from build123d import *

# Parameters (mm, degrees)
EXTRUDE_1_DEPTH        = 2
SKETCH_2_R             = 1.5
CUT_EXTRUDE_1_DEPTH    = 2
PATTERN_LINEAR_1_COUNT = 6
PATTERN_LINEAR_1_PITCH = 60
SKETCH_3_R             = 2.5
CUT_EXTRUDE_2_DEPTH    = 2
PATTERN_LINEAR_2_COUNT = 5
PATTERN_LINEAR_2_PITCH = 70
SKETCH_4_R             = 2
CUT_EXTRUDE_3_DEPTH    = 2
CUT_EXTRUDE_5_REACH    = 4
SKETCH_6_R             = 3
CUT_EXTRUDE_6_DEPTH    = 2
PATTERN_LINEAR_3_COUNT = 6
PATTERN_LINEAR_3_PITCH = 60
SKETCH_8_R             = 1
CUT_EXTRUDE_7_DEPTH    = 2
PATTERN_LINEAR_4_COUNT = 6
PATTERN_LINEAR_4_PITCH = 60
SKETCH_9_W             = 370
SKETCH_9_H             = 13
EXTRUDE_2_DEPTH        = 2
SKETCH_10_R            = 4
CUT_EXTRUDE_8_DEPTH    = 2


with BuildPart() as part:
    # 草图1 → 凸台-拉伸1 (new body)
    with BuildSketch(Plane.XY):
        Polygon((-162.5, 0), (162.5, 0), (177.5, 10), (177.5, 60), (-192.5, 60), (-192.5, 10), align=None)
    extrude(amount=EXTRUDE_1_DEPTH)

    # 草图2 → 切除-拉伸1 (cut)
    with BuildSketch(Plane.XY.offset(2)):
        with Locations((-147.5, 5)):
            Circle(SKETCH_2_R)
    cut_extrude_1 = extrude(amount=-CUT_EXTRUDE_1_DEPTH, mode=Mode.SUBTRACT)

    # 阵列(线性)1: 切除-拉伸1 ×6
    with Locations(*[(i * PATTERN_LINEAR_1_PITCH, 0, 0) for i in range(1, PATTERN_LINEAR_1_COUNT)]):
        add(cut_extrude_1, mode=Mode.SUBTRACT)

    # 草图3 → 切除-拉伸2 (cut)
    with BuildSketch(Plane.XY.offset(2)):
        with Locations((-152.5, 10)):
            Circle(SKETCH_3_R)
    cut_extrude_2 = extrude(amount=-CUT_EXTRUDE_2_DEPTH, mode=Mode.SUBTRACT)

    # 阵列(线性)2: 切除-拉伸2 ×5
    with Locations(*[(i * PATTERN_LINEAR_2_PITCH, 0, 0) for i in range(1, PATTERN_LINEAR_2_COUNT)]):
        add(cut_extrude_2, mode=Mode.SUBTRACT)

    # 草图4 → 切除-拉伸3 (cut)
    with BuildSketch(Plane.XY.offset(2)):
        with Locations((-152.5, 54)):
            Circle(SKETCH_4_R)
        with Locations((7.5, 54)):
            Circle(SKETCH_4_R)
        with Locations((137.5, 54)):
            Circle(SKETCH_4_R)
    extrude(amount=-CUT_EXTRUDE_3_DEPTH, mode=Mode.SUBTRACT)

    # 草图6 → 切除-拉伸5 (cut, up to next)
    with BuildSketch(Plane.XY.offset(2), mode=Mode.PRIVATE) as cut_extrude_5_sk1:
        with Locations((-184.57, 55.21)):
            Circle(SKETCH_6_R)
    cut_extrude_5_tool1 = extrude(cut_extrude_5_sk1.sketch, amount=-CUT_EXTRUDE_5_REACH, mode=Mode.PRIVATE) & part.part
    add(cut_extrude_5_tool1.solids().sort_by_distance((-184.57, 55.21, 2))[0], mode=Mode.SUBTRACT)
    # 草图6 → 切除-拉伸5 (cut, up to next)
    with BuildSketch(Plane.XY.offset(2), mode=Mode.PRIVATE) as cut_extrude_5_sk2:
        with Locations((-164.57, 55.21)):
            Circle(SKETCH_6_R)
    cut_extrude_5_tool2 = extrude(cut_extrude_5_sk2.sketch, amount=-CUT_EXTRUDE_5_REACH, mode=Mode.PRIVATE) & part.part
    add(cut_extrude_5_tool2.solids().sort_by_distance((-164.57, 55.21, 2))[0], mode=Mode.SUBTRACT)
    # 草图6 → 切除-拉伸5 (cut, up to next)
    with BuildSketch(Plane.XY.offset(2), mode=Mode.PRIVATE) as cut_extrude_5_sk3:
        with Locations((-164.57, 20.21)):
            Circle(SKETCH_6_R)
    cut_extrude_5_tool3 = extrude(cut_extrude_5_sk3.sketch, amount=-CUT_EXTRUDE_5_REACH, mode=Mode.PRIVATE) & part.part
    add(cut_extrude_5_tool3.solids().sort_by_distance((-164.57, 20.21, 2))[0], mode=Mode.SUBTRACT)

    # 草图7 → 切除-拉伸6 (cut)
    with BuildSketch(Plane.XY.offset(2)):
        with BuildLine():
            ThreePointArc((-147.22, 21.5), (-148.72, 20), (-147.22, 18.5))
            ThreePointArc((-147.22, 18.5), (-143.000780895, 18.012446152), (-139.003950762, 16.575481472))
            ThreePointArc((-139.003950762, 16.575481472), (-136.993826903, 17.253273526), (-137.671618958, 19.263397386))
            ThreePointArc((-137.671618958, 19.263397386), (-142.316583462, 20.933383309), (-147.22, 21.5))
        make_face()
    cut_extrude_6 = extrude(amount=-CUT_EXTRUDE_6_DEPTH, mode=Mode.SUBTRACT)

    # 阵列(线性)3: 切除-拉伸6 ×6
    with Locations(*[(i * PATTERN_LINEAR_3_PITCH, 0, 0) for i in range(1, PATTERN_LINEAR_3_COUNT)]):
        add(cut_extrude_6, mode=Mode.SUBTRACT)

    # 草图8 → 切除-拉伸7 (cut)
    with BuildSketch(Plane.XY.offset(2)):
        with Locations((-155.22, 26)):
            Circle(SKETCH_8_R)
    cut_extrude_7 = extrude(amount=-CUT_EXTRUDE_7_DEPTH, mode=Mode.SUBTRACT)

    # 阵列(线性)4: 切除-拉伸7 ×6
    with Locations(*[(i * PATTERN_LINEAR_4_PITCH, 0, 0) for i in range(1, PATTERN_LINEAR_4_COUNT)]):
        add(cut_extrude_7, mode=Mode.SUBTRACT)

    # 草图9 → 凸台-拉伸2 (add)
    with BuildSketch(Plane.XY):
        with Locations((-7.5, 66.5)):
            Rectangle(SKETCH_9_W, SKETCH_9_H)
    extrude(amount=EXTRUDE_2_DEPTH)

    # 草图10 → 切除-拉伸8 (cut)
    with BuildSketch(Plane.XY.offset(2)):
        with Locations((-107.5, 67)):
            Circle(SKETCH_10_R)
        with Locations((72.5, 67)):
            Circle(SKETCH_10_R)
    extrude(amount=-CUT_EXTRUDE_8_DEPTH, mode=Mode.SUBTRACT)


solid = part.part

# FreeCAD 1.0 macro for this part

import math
import FreeCAD as App
import Part
import Sketcher
from FreeCAD import Vector
Q = App.Units.Quantity


def add_polygon(sketch, points):
    """Adds a closed chain of lines whose ends are joined by coincident constraints."""
    first, n = sketch.GeometryCount, len(points)
    for a, b in zip(points, points[1:] + points[:1]):
        sketch.addGeometry(Part.LineSegment(App.Vector(*a, 0), App.Vector(*b, 0)), False)
    for i in range(n):
        sketch.addConstraint(Sketcher.Constraint("Coincident", first + i, 2, first + (i + 1) % n, 1))

doc = App.newDocument("Part")
body = doc.addObject("PartDesign::Body", "Body")

# Sketch on XY plane
sketch1 = doc.addObject("Sketcher::SketchObject", "Sketch")
body.addObject(sketch1)
sketch1.AttachmentSupport = (doc.XY_Plane, [""])
sketch1.MapMode = "FlatFace"
add_polygon(sketch1, [(-162, 0), (162, 0), (178, 10), (178, 60), (-192, 60), (-192, 10)])  # lines 0-5
sketch1.addConstraint(Sketcher.Constraint("Horizontal", 0))
sketch1.addConstraint(Sketcher.Constraint("Vertical", 2))
sketch1.addConstraint(Sketcher.Constraint("Horizontal", 3))
sketch1.addConstraint(Sketcher.Constraint("Vertical", 4))
sketch1.addConstraint(Sketcher.Constraint("Symmetric", 0, 2, 5, 2, -1, 1))
sketch1.addConstraint(Sketcher.Constraint("Horizontal", 1, 2, 4, 2))
sketch1.addConstraint(Sketcher.Constraint("DistanceX", 0, 1, 0, 2, Q("325 mm")))
sketch1.addConstraint(Sketcher.Constraint("DistanceX", 3, 2, 3, 1, Q("370 mm")))
sketch1.addConstraint(Sketcher.Constraint("DistanceY", 2, 1, 2, 2, Q("50 mm")))
sketch1.addConstraint(Sketcher.Constraint("DistanceY", -1, 1, 1, 2, Q("10 mm")))
sketch1.addConstraint(Sketcher.Constraint("DistanceX", 0, 2, 1, 2, Q("15 mm")))
pad1 = doc.addObject("PartDesign::Pad", "Pad")
body.addObject(pad1)
pad1.Profile = sketch1
pad1.Length = 2

# Sketch on XY plane
sketch2 = doc.addObject("Sketcher::SketchObject", "Sketch001")
body.addObject(sketch2)
sketch2.AttachmentSupport = (doc.XY_Plane, [""])
sketch2.MapMode = "FlatFace"
sketch2.AttachmentOffset = App.Placement(Vector(0, 0, 2), App.Rotation())
sketch2.addGeometry(Part.Circle(Vector(-147.5, 5, 0), Vector(0, 0, 1), 1.5), False)
sketch2.addConstraint(Sketcher.Constraint("Diameter", 0, Q("3 mm")))
sketch2.addConstraint(Sketcher.Constraint("DistanceY", -1, 1, 0, 3, Q("5 mm")))
sketch2.addConstraint(Sketcher.Constraint("DistanceX", 0, 3, -1, 1, Q("147.5 mm")))
pocket1 = doc.addObject("PartDesign::Pocket", "Pocket")
body.addObject(pocket1)
pocket1.Profile = sketch2
pocket1.Length = 2
doc.recompute()

linearpattern = doc.addObject("PartDesign::LinearPattern", "LinearPattern")
body.addObject(linearpattern)
linearpattern.Originals = [pocket1]
linearpattern.Direction = (doc.X_Axis, [""])
linearpattern.Mode = "offset"
linearpattern.Offset = 60
linearpattern.Occurrences = 6
body.Tip = linearpattern

# Sketch on XY plane
sketch3 = doc.addObject("Sketcher::SketchObject", "Sketch002")
body.addObject(sketch3)
sketch3.AttachmentSupport = (doc.XY_Plane, [""])
sketch3.MapMode = "FlatFace"
sketch3.AttachmentOffset = App.Placement(Vector(0, 0, 2), App.Rotation())
sketch3.addGeometry(Part.Circle(Vector(-152.5, 10, 0), Vector(0, 0, 1), 2.5), False)
sketch3.addConstraint(Sketcher.Constraint("Diameter", 0, Q("5 mm")))
sketch3.addConstraint(Sketcher.Constraint("DistanceY", -1, 1, 0, 3, Q("10 mm")))
sketch3.addConstraint(Sketcher.Constraint("DistanceX", 0, 3, -1, 1, Q("152.5 mm")))
pocket2 = doc.addObject("PartDesign::Pocket", "Pocket001")
body.addObject(pocket2)
pocket2.Profile = sketch3
pocket2.Length = 2
doc.recompute()

linearpattern2 = doc.addObject("PartDesign::LinearPattern", "LinearPattern001")
body.addObject(linearpattern2)
linearpattern2.Originals = [pocket2]
linearpattern2.Direction = (doc.X_Axis, [""])
linearpattern2.Mode = "offset"
linearpattern2.Offset = 70
linearpattern2.Occurrences = 5
body.Tip = linearpattern2

# Sketch on XY plane
sketch4 = doc.addObject("Sketcher::SketchObject", "Sketch003")
body.addObject(sketch4)
sketch4.AttachmentSupport = (doc.XY_Plane, [""])
sketch4.MapMode = "FlatFace"
sketch4.AttachmentOffset = App.Placement(Vector(0, 0, 2), App.Rotation())
sketch4.addGeometry(Part.Circle(Vector(-152.5, 54, 0), Vector(0, 0, 1), 2), False)
sketch4.addGeometry(Part.Circle(Vector(7.5, 54, 0), Vector(0, 0, 1), 2), False)
sketch4.addGeometry(Part.Circle(Vector(137.5, 54, 0), Vector(0, 0, 1), 2), False)
sketch4.addConstraint(Sketcher.Constraint("Equal", 0, 1))
sketch4.addConstraint(Sketcher.Constraint("Equal", 1, 2))
sketch4.addConstraint(Sketcher.Constraint("Horizontal", 0, 3, 1, 3))
sketch4.addConstraint(Sketcher.Constraint("Horizontal", 1, 3, 2, 3))
sketch4.addConstraint(Sketcher.Constraint("Diameter", 0, Q("4 mm")))
sketch4.addConstraint(Sketcher.Constraint("DistanceY", -1, 1, 0, 3, Q("54 mm")))
sketch4.addConstraint(Sketcher.Constraint("DistanceX", 0, 3, 1, 3, Q("160 mm")))
sketch4.addConstraint(Sketcher.Constraint("DistanceX", 1, 3, 2, 3, Q("130 mm")))
sketch4.addConstraint(Sketcher.Constraint("DistanceX", 0, 3, -1, 1, Q("152.5 mm")))
pocket3 = doc.addObject("PartDesign::Pocket", "Pocket002")
body.addObject(pocket3)
pocket3.Profile = sketch4
pocket3.Length = 2

# Sketch on XY plane
sketch5 = doc.addObject("Sketcher::SketchObject", "Sketch004")
body.addObject(sketch5)
sketch5.AttachmentSupport = (doc.XY_Plane, [""])
sketch5.MapMode = "FlatFace"
sketch5.AttachmentOffset = App.Placement(Vector(0, 0, 2), App.Rotation())
sketch5.addGeometry(Part.Circle(Vector(-184.6, 55.2, 0), Vector(0, 0, 1), 3), False)
sketch5.addConstraint(Sketcher.Constraint("Diameter", 0, Q("6 mm")))
sketch5.addConstraint(Sketcher.Constraint("DistanceX", 0, 3, -1, 1, Q("184.57 mm")))
sketch5.addConstraint(Sketcher.Constraint("DistanceY", -1, 1, 0, 3, Q("55.21 mm")))
pocket4 = doc.addObject("PartDesign::Pocket", "Pocket003")
body.addObject(pocket4)
pocket4.Profile = sketch5
pocket4.Type = "UpToFirst"

# Sketch on XY plane
sketch6 = doc.addObject("Sketcher::SketchObject", "Sketch005")
body.addObject(sketch6)
sketch6.AttachmentSupport = (doc.XY_Plane, [""])
sketch6.MapMode = "FlatFace"
sketch6.AttachmentOffset = App.Placement(Vector(0, 0, 2), App.Rotation())
sketch6.addGeometry(Part.Circle(Vector(-164.6, 55.2, 0), Vector(0, 0, 1), 3), False)
sketch6.addConstraint(Sketcher.Constraint("Diameter", 0, Q("6 mm")))
sketch6.addConstraint(Sketcher.Constraint("DistanceX", 0, 3, -1, 1, Q("164.57 mm")))
sketch6.addConstraint(Sketcher.Constraint("DistanceY", -1, 1, 0, 3, Q("55.21 mm")))
pocket5 = doc.addObject("PartDesign::Pocket", "Pocket004")
body.addObject(pocket5)
pocket5.Profile = sketch6
pocket5.Type = "UpToFirst"

# Sketch on XY plane
sketch7 = doc.addObject("Sketcher::SketchObject", "Sketch006")
body.addObject(sketch7)
sketch7.AttachmentSupport = (doc.XY_Plane, [""])
sketch7.MapMode = "FlatFace"
sketch7.AttachmentOffset = App.Placement(Vector(0, 0, 2), App.Rotation())
sketch7.addGeometry(Part.Circle(Vector(-164.6, 20.2, 0), Vector(0, 0, 1), 3), False)
sketch7.addConstraint(Sketcher.Constraint("Diameter", 0, Q("6 mm")))
sketch7.addConstraint(Sketcher.Constraint("DistanceX", 0, 3, -1, 1, Q("164.57 mm")))
sketch7.addConstraint(Sketcher.Constraint("DistanceY", -1, 1, 0, 3, Q("20.21 mm")))
pocket6 = doc.addObject("PartDesign::Pocket", "Pocket005")
body.addObject(pocket6)
pocket6.Profile = sketch7
pocket6.Type = "UpToFirst"

# Sketch on XY plane
sketch8 = doc.addObject("Sketcher::SketchObject", "Sketch007")
body.addObject(sketch8)
sketch8.AttachmentSupport = (doc.XY_Plane, [""])
sketch8.MapMode = "FlatFace"
sketch8.AttachmentOffset = App.Placement(Vector(0, 0, 2), App.Rotation())
sketch8.addGeometry(Part.ArcOfCircle(Part.Circle(Vector(-147.2, 20, 0), Vector(0, 0, 1), 1.5), math.radians(90), math.radians(270)), False)
sketch8.addGeometry(Part.ArcOfCircle(Part.Circle(Vector(-147.2, 0, 0), Vector(0, 0, 1), 18.5), math.radians(64), math.radians(90)), False)
sketch8.addGeometry(Part.ArcOfCircle(Part.Circle(Vector(-138.3, 17.9, 0), Vector(0, 0, 1), 1.5), math.radians(-116), math.radians(64)), False)
sketch8.addGeometry(Part.ArcOfCircle(Part.Circle(Vector(-147.2, 0, 0), Vector(0, 0, 1), 21.5), math.radians(64), math.radians(90)), False)
sketch8.addConstraint(Sketcher.Constraint("Tangent", 0, 2, 1, 2))
sketch8.addConstraint(Sketcher.Constraint("Tangent", 1, 1, 2, 1))
sketch8.addConstraint(Sketcher.Constraint("Tangent", 2, 2, 3, 1))
sketch8.addConstraint(Sketcher.Constraint("Tangent", 3, 2, 0, 1))
sketch8.addConstraint(Sketcher.Constraint("Coincident", 3, 3, 1, 3))
sketch8.addConstraint(Sketcher.Constraint("PointOnObject", 1, 3, -1))
sketch8.addConstraint(Sketcher.Constraint("Vertical", 0, 2, 3, 2))
sketch8.addConstraint(Sketcher.Constraint("Radius", 0, Q("1.5 mm")))
sketch8.addConstraint(Sketcher.Constraint("Radius", 1, Q("18.5 mm")))
sketch8.addConstraint(Sketcher.Constraint("DistanceX", 0, 3, -1, 1, Q("147.22 mm")))
sketch8.addConstraint(Sketcher.Constraint("DistanceY", -1, 1, 2, 3, Q("17.919439 mm")))
pocket7 = doc.addObject("PartDesign::Pocket", "Pocket006")
body.addObject(pocket7)
pocket7.Profile = sketch8
pocket7.Length = 2
doc.recompute()

linearpattern3 = doc.addObject("PartDesign::LinearPattern", "LinearPattern002")
body.addObject(linearpattern3)
linearpattern3.Originals = [pocket7]
linearpattern3.Direction = (doc.X_Axis, [""])
linearpattern3.Mode = "offset"
linearpattern3.Offset = 60
linearpattern3.Occurrences = 6
body.Tip = linearpattern3

# Sketch on XY plane
sketch9 = doc.addObject("Sketcher::SketchObject", "Sketch008")
body.addObject(sketch9)
sketch9.AttachmentSupport = (doc.XY_Plane, [""])
sketch9.MapMode = "FlatFace"
sketch9.AttachmentOffset = App.Placement(Vector(0, 0, 2), App.Rotation())
sketch9.addGeometry(Part.Circle(Vector(-155.2, 26, 0), Vector(0, 0, 1), 1), False)
sketch9.addConstraint(Sketcher.Constraint("Diameter", 0, Q("2 mm")))
sketch9.addConstraint(Sketcher.Constraint("DistanceY", -1, 1, 0, 3, Q("26 mm")))
sketch9.addConstraint(Sketcher.Constraint("DistanceX", 0, 3, -1, 1, Q("155.22 mm")))
pocket8 = doc.addObject("PartDesign::Pocket", "Pocket007")
body.addObject(pocket8)
pocket8.Profile = sketch9
pocket8.Length = 2
doc.recompute()

linearpattern4 = doc.addObject("PartDesign::LinearPattern", "LinearPattern003")
body.addObject(linearpattern4)
linearpattern4.Originals = [pocket8]
linearpattern4.Direction = (doc.X_Axis, [""])
linearpattern4.Mode = "offset"
linearpattern4.Offset = 60
linearpattern4.Occurrences = 6
body.Tip = linearpattern4

# Sketch on XY plane
sketch10 = doc.addObject("Sketcher::SketchObject", "Sketch009")
body.addObject(sketch10)
sketch10.AttachmentSupport = (doc.XY_Plane, [""])
sketch10.MapMode = "FlatFace"
add_polygon(sketch10, [(-192, 73), (-192, 60), (178, 60), (178, 73)])  # lines 0-3
sketch10.addConstraint(Sketcher.Constraint("Vertical", 0))
sketch10.addConstraint(Sketcher.Constraint("Horizontal", 1))
sketch10.addConstraint(Sketcher.Constraint("Vertical", 2))
sketch10.addConstraint(Sketcher.Constraint("Horizontal", 3))
sketch10.addConstraint(Sketcher.Constraint("DistanceX", 1, 1, 1, 2, Q("370 mm")))
sketch10.addConstraint(Sketcher.Constraint("DistanceY", 0, 2, 0, 1, Q("13 mm")))
sketch10.addConstraint(Sketcher.Constraint("DistanceY", -1, 1, 0, 2, Q("60 mm")))
sketch10.addConstraint(Sketcher.Constraint("DistanceX", 0, 2, -1, 1, Q("192.5 mm")))
pad2 = doc.addObject("PartDesign::Pad", "Pad001")
body.addObject(pad2)
pad2.Profile = sketch10
pad2.Length = 2

# Sketch on XY plane
sketch11 = doc.addObject("Sketcher::SketchObject", "Sketch010")
body.addObject(sketch11)
sketch11.AttachmentSupport = (doc.XY_Plane, [""])
sketch11.MapMode = "FlatFace"
sketch11.AttachmentOffset = App.Placement(Vector(0, 0, 2), App.Rotation())
sketch11.addGeometry(Part.Circle(Vector(-107.5, 67, 0), Vector(0, 0, 1), 4), False)
sketch11.addGeometry(Part.Circle(Vector(72.5, 67, 0), Vector(0, 0, 1), 4), False)
sketch11.addConstraint(Sketcher.Constraint("Equal", 0, 1))
sketch11.addConstraint(Sketcher.Constraint("Horizontal", 0, 3, 1, 3))
sketch11.addConstraint(Sketcher.Constraint("Diameter", 0, Q("8 mm")))
sketch11.addConstraint(Sketcher.Constraint("DistanceY", -1, 1, 0, 3, Q("67 mm")))
sketch11.addConstraint(Sketcher.Constraint("DistanceX", 0, 3, 1, 3, Q("180 mm")))
sketch11.addConstraint(Sketcher.Constraint("DistanceX", 0, 3, -1, 1, Q("107.5 mm")))
pocket9 = doc.addObject("PartDesign::Pocket", "Pocket008")
body.addObject(pocket9)
pocket9.Profile = sketch11
pocket9.Length = 2

doc.recompute()
